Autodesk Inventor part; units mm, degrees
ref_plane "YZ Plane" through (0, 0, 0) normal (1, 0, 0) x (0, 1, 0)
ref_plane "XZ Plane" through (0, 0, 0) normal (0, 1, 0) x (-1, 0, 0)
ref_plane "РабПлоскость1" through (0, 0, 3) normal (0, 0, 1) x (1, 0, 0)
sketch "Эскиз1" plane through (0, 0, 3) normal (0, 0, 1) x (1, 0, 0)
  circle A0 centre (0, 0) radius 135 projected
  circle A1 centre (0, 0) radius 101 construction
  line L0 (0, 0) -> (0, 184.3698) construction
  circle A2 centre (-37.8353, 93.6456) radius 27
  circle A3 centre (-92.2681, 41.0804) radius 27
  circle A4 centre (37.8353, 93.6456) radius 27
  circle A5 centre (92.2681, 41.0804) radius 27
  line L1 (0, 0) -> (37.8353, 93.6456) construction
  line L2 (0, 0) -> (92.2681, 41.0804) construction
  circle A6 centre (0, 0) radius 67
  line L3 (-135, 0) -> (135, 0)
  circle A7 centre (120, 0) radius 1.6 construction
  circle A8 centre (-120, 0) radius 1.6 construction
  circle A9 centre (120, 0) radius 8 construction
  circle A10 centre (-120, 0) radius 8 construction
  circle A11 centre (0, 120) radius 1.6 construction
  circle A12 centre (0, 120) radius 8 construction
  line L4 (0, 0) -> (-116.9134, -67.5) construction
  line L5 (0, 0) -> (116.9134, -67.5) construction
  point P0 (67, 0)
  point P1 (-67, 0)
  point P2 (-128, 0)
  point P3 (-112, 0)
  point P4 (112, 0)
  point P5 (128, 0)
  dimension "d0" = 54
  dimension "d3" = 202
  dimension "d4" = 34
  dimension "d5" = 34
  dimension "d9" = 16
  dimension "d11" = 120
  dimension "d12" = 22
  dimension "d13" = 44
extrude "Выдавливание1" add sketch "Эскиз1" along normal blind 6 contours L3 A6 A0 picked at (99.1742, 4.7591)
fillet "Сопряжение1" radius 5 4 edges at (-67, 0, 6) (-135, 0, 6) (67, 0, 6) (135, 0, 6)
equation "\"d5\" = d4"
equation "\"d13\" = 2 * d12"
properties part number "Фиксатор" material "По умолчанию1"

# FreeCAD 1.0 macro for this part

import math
import FreeCAD as App
import Part
import Sketcher

V = App.Vector
Q = App.Units.Quantity


def edges_at(feature, points):
    """Names of the edges that pass closest to the given points."""
    edges = feature.Shape.Edges
    near = lambda p: min(range(len(edges)), key=lambda i: edges[i].distToShape(Part.Vertex(*p))[0])
    return sorted({f"Edge{near(p) + 1}" for p in points})

doc = App.newDocument("Part")
body = doc.addObject("PartDesign::Body", "Body")

# Sketch on XY plane
sketch1 = body.newObject("Sketcher::SketchObject", "Sketch")
sketch1.AttachmentSupport = (doc.getObject("XY_Plane"), [""])
sketch1.MapMode = "FlatFace"
sketch1.AttachmentOffset = App.Placement(V(0, 0, 3), App.Rotation())
sketch1.addGeometry(Part.LineSegment(V(67, 0, 0), V(135, 0, 0)), False)
sketch1.addGeometry(Part.ArcOfCircle(Part.Circle(V(0, 0, 0), V(0, 0, 1), 135), math.radians(0), math.radians(180)), False)
sketch1.addGeometry(Part.LineSegment(V(-135, 0, 0), V(-67, 0, 0)), False)
sketch1.addGeometry(Part.ArcOfCircle(Part.Circle(V(0, 0, 0), V(0, 0, 1), 67), math.radians(0), math.radians(180)), False)
sketch1.addGeometry(Part.Circle(V(-92, 41, 0), V(0, 0, 1), 27), False)
sketch1.addGeometry(Part.Circle(V(-38, 94, 0), V(0, 0, 1), 27), False)
sketch1.addGeometry(Part.Circle(V(92, 41, 0), V(0, 0, 1), 27), False)
sketch1.addGeometry(Part.Circle(V(38, 94, 0), V(0, 0, 1), 27), False)
sketch1.addConstraint(Sketcher.Constraint("Coincident", 0, 2, 1, 1))
sketch1.addConstraint(Sketcher.Constraint("Coincident", 1, 2, 2, 1))
sketch1.addConstraint(Sketcher.Constraint("Coincident", 2, 2, 3, 2))
sketch1.addConstraint(Sketcher.Constraint("Coincident", 3, 1, 0, 1))
sketch1.addConstraint(Sketcher.Constraint("Horizontal", 0))
sketch1.addConstraint(Sketcher.Constraint("Horizontal", 2))
sketch1.addConstraint(Sketcher.Constraint("Coincident", 1, 3, -1, 1))
sketch1.addConstraint(Sketcher.Constraint("Coincident", 3, 3, -1, 1))
sketch1.addConstraint(Sketcher.Constraint("Equal", 4, 5))
sketch1.addConstraint(Sketcher.Constraint("Equal", 5, 6))
sketch1.addConstraint(Sketcher.Constraint("Equal", 6, 7))
sketch1.addConstraint(Sketcher.Constraint("Symmetric", 4, 3, 6, 3, -2))
sketch1.addConstraint(Sketcher.Constraint("Symmetric", 5, 3, 7, 3, -2))
sketch1.addConstraint(Sketcher.Constraint("PointOnObject", 0, 2, -1))
sketch1.addConstraint(Sketcher.Constraint("PointOnObject", 1, 2, -1))
sketch1.addConstraint(Sketcher.Constraint("Diameter", 4, Q("54 mm")))
sketch1.addConstraint(Sketcher.Constraint("Radius", 1, Q("135 mm")))
sketch1.addConstraint(Sketcher.Constraint("Radius", 3, Q("67 mm")))
sketch1.addConstraint(Sketcher.Constraint("DistanceX", 4, 3, -1, 1, Q("92.268 mm")))
sketch1.addConstraint(Sketcher.Constraint("DistanceY", -1, 1, 4, 3, Q("41.0804 mm")))
sketch1.addConstraint(Sketcher.Constraint("DistanceX", 5, 3, -1, 1, Q("37.8353 mm")))
sketch1.addConstraint(Sketcher.Constraint("DistanceY", -1, 1, 5, 3, Q("93.6456 mm")))
pad1 = body.newObject("PartDesign::Pad", "Pad")
pad1.Profile = sketch1
pad1.Length = 6
doc.recompute()

fillet = body.newObject("PartDesign::Fillet", "Fillet")
fillet.Base = (pad1, edges_at(pad1, [
    (-67, 0, 6),
    (-135, 0, 6),
    (67, 0, 6),
    (135, 0, 6),
]))
fillet.Radius = 5

doc.recompute()
